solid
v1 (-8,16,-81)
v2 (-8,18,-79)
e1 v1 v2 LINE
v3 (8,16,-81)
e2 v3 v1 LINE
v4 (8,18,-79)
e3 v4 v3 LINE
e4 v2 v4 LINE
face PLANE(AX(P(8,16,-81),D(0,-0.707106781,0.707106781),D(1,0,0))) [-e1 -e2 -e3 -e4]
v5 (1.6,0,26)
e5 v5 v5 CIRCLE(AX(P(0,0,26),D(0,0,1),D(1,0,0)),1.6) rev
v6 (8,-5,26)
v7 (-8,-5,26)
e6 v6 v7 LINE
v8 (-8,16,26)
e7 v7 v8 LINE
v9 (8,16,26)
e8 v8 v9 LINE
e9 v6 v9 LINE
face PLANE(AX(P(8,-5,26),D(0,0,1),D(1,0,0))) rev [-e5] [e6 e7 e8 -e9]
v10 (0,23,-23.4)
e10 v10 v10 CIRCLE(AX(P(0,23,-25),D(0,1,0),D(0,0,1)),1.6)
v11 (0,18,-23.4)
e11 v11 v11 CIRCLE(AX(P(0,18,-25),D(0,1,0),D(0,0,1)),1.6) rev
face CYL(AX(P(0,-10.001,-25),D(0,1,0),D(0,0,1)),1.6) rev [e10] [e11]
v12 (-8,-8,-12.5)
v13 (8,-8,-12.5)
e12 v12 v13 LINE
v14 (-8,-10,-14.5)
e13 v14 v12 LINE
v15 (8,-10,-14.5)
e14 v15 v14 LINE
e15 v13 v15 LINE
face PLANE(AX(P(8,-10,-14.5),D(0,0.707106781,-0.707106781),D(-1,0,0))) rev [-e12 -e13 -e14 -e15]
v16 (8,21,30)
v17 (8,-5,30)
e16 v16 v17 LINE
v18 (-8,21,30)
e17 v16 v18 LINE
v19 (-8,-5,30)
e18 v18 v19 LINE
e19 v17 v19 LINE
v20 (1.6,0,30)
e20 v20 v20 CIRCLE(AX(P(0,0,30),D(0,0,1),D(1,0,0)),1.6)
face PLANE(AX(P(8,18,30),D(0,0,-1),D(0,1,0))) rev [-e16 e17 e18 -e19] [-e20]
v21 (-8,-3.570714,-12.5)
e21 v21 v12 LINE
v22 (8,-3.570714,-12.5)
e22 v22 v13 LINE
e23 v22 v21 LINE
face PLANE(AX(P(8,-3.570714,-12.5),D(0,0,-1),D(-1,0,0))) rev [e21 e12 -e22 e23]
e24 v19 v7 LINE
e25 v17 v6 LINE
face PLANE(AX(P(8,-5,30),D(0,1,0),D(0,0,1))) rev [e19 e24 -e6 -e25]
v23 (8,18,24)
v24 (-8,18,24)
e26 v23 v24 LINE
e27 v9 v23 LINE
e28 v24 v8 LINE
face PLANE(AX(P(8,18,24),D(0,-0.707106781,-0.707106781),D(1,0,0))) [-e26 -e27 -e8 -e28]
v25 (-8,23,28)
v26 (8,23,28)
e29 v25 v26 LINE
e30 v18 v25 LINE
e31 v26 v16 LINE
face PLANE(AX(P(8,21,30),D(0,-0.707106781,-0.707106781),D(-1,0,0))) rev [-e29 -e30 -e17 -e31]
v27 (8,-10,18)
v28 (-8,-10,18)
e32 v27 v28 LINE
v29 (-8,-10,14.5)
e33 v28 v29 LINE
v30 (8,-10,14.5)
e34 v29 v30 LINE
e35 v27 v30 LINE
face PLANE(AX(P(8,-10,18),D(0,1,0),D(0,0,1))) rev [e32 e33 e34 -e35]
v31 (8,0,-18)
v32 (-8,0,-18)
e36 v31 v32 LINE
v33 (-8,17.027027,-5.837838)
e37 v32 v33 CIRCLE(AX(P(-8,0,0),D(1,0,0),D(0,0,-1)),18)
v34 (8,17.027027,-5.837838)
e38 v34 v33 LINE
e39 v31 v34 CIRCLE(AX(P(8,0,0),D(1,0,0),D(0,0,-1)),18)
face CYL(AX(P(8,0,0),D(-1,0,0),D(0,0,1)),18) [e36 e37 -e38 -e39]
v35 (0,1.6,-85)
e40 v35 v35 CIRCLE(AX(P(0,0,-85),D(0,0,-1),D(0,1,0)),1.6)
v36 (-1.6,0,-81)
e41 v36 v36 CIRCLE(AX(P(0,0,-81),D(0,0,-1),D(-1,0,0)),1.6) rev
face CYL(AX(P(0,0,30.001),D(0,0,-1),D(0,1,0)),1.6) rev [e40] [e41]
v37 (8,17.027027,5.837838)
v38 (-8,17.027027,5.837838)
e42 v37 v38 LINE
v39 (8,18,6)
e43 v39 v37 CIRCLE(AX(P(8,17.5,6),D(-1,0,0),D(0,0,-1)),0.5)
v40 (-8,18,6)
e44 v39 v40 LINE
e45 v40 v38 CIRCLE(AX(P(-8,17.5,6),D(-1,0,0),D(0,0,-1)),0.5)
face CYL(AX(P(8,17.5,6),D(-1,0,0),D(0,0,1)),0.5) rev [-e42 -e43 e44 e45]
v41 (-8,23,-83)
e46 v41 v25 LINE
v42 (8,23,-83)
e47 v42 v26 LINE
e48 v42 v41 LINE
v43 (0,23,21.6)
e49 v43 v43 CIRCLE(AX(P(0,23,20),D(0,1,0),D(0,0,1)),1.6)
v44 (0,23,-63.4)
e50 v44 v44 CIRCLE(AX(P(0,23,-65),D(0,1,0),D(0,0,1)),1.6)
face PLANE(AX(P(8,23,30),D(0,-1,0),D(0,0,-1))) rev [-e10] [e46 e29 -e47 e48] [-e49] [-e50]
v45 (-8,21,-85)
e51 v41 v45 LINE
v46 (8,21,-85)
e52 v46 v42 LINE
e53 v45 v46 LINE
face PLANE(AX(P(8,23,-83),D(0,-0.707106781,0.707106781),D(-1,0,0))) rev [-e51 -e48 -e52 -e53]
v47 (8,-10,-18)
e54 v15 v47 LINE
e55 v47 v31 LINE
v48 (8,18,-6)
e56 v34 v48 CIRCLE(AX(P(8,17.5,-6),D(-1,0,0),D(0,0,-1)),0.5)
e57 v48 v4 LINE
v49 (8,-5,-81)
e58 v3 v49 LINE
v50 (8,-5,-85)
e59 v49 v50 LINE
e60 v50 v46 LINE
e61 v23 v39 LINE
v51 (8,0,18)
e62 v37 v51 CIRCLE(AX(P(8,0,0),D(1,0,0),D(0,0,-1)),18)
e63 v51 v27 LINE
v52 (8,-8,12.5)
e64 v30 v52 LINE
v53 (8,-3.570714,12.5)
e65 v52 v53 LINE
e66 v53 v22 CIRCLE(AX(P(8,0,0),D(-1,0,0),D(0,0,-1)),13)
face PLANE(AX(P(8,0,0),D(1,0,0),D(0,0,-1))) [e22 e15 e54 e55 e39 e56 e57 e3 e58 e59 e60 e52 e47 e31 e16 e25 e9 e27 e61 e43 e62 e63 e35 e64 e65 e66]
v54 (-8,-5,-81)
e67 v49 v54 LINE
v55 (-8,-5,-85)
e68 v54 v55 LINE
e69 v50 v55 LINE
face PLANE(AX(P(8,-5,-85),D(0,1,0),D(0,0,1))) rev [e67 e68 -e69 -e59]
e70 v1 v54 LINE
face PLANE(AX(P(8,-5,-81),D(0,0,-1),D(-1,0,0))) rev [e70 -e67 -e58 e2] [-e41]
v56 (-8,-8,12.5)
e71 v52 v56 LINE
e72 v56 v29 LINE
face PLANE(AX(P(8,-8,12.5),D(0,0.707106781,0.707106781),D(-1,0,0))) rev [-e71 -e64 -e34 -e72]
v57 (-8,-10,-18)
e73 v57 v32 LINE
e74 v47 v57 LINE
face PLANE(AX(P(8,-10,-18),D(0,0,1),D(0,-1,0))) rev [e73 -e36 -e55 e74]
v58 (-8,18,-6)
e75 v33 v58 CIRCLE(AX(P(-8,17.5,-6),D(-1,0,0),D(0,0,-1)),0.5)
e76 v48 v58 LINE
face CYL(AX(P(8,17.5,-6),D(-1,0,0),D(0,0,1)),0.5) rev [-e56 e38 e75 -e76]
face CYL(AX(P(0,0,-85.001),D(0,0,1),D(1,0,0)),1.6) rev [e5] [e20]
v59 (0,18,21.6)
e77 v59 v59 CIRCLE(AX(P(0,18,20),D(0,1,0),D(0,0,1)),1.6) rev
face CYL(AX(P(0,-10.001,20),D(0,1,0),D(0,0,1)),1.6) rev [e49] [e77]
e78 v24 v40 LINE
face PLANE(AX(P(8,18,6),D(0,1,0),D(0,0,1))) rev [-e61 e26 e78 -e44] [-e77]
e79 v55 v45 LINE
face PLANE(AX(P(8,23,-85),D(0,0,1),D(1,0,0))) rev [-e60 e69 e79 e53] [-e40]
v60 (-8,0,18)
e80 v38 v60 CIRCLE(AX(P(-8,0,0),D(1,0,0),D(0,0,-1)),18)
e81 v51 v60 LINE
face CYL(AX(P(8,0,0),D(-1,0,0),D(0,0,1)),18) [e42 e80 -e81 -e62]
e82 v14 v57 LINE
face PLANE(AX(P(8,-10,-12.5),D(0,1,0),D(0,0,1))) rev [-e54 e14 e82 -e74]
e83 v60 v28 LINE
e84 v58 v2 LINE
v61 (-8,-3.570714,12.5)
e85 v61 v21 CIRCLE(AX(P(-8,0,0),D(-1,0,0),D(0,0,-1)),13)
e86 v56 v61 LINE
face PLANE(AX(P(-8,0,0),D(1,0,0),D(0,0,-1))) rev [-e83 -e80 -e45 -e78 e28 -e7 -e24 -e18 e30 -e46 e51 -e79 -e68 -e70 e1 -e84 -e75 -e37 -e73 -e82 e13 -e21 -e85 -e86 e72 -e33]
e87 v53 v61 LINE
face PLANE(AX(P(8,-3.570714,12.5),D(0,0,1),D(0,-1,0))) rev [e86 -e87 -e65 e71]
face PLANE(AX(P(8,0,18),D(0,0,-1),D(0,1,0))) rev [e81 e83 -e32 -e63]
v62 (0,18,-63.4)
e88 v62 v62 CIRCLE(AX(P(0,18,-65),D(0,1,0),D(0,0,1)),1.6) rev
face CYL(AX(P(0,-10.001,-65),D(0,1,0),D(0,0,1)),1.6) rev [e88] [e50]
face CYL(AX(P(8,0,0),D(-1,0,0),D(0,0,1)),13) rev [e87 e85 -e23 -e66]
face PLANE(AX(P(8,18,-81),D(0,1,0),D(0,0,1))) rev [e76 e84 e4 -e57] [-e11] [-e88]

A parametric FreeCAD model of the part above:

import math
import FreeCAD as App
import Part
import Sketcher

V = App.Vector


def edges_at(feature, points):
    """Names of the edges that pass closest to the given points."""
    edges = feature.Shape.Edges
    near = lambda p: min(range(len(edges)), key=lambda i: edges[i].distToShape(Part.Vertex(*p))[0])
    return sorted({f"Edge{near(p) + 1}" for p in points})

doc = App.newDocument("Part")
params = doc.addObject("Spreadsheet::Sheet", "Params")
for row, (alias, value) in enumerate([
    ("sketch1_radius", "13 mm"),
    ("sketch1_radius2", "18 mm"),
    ("sketch1_radius3", "0.5 mm"),
    ("sketch1_width", "10 mm"),
    ("sketch1_width2", "23 mm"),
    ("pad1_length", "16 mm"),
    ("chamfer_size", "2 mm"),
    ("chamfer2_size", "2 mm"),
    ("sketch2_diameter", "3.2 mm"),
    ("sketch3_diameter", "3.2 mm"),
    ("sketch4_diameter", "3.2 mm"),
    ("sketch5_diameter", "3.2 mm"),
    ("sketch6_diameter", "3.2 mm"),
], start=1):
    params.set(f"A{row}", alias)
    params.set(f"B{row}", "=" + value)
    params.setAlias(f"B{row}", alias)

body = doc.addObject("PartDesign::Body", "Body")

# Sketch on YZ plane
sketch1 = body.newObject("Sketcher::SketchObject", "Sketch")
sketch1.AttachmentSupport = (doc.getObject("YZ_Plane"), [""])
sketch1.MapMode = "FlatFace"
sketch1.addGeometry([
    Part.LineSegment(V(-10, 12.5, 0), V(-3.6, 12.5, 0)),  # 0
    Part.ArcOfCircle(Part.Circle(V(0, 0, 0), V(0, 0, 1), 13), math.radians(-106), math.radians(106)),  # 1
    Part.LineSegment(V(-3.6, -12.5, 0), V(-10, -12.5, 0)),  # 2
    Part.LineSegment(V(-10, -12.5, 0), V(-10, -18, 0)),  # 3
    Part.LineSegment(V(-10, -18, 0), V(0, -18, 0)),  # 4
    Part.ArcOfCircle(Part.Circle(V(0, 0, 0), V(0, 0, 1), 18), math.radians(-90), math.radians(-19)),  # 5
    Part.ArcOfCircle(Part.Circle(V(17.5, -6, 0), V(0, 0, 1), 0.5), math.radians(0), math.radians(161)),  # 6
    Part.LineSegment(V(18, -6, 0), V(18, -81, 0)),  # 7
    Part.LineSegment(V(18, -81, 0), V(-5, -81, 0)),  # 8
    Part.LineSegment(V(-5, -81, 0), V(-5, -85, 0)),  # 9
    Part.LineSegment(V(-5, -85, 0), V(23, -85, 0)),  # 10
    Part.LineSegment(V(23, -85, 0), V(23, 30, 0)),  # 11
    Part.LineSegment(V(23, 30, 0), V(-5, 30, 0)),  # 12
    Part.LineSegment(V(-5, 30, 0), V(-5, 26, 0)),  # 13
    Part.LineSegment(V(-5, 26, 0), V(18, 26, 0)),  # 14
    Part.LineSegment(V(18, 26, 0), V(18, 6, 0)),  # 15
    Part.ArcOfCircle(Part.Circle(V(17.5, 6, 0), V(0, 0, 1), 0.5), math.radians(-161), math.radians(0)),  # 16
    Part.ArcOfCircle(Part.Circle(V(0, 0, 0), V(0, 0, 1), 18), math.radians(19), math.radians(90)),  # 17
    Part.LineSegment(V(0, 18, 0), V(-10, 18, 0)),  # 18
    Part.LineSegment(V(-10, 18, 0), V(-10, 12.5, 0)),  # 19
], False)
sketch1.addConstraint([
    Sketcher.Constraint("Coincident", 0, 2, 1, 2),
    Sketcher.Constraint("Coincident", 1, 1, 2, 1),
    Sketcher.Constraint("Coincident", 2, 2, 3, 1),
    Sketcher.Constraint("Coincident", 3, 2, 4, 1),
    Sketcher.Constraint("Tangent", 4, 2, 5, 1),
    Sketcher.Constraint("Tangent", 5, 2, 6, 2),
    Sketcher.Constraint("Tangent", 6, 1, 7, 1),
    Sketcher.Constraint("Coincident", 7, 2, 8, 1),
    Sketcher.Constraint("Coincident", 8, 2, 9, 1),
    Sketcher.Constraint("Coincident", 9, 2, 10, 1),
    Sketcher.Constraint("Coincident", 10, 2, 11, 1),
    Sketcher.Constraint("Coincident", 11, 2, 12, 1),
    Sketcher.Constraint("Coincident", 12, 2, 13, 1),
    Sketcher.Constraint("Coincident", 13, 2, 14, 1),
    Sketcher.Constraint("Coincident", 14, 2, 15, 1),
    Sketcher.Constraint("Tangent", 15, 2, 16, 2),
    Sketcher.Constraint("Tangent", 16, 1, 17, 1),
    Sketcher.Constraint("Tangent", 17, 2, 18, 1),
    Sketcher.Constraint("Coincident", 18, 2, 19, 1),
    Sketcher.Constraint("Coincident", 19, 2, 0, 1),
    Sketcher.Constraint("Horizontal", 0),
    Sketcher.Constraint("Horizontal", 2),
    Sketcher.Constraint("Vertical", 3),
    Sketcher.Constraint("Horizontal", 4),
    Sketcher.Constraint("Vertical", 7),
    Sketcher.Constraint("Horizontal", 8),
    Sketcher.Constraint("Vertical", 9),
    Sketcher.Constraint("Horizontal", 10),
    Sketcher.Constraint("Vertical", 11),
    Sketcher.Constraint("Horizontal", 12),
    Sketcher.Constraint("Vertical", 13),
    Sketcher.Constraint("Horizontal", 14),
    Sketcher.Constraint("Vertical", 15),
    Sketcher.Constraint("Horizontal", 18),
    Sketcher.Constraint("Vertical", 19),
    Sketcher.Constraint("Coincident", 1, 3, -1, 1),
    Sketcher.Constraint("Coincident", 5, 3, -1, 1),
    Sketcher.Constraint("Coincident", 17, 3, -1, 1),
    Sketcher.Constraint("Equal", 6, 16),
    Sketcher.Constraint("Equal", 5, 17),
    Sketcher.Constraint("Symmetric", 2, 2, 19, 2, -1),
    Sketcher.Constraint("Vertical", 6, 3, 16, 3),
    Sketcher.Constraint("Vertical", 9, 2, 12, 2),
    Sketcher.Constraint("Equal", 9, 13),
    Sketcher.Constraint("Radius", 1, 13.0),
    Sketcher.Constraint("Radius", 5, 18.0),
    Sketcher.Constraint("Radius", 6, 0.5),
    Sketcher.Constraint("DistanceX", 4, 1, 4, 2, 10.0),
    Sketcher.Constraint("DistanceX", 8, 2, 8, 1, 23.0),
    Sketcher.Constraint("DistanceX", 10, 1, 10, 2, 28.0),
    Sketcher.Constraint("DistanceY", 7, 2, 7, 1, 75.0),
    Sketcher.Constraint("DistanceY", 9, 2, 9, 1, 4.0),
    Sketcher.Constraint("DistanceY", 11, 1, 11, 2, 115.0),
    Sketcher.Constraint("DistanceY", 15, 2, 15, 1, 20.0),
    Sketcher.Constraint("DistanceY", 3, 2, 3, 1, 5.5),
])
sketch1.setExpression("Constraints[44]", "Params.sketch1_radius")
sketch1.setExpression("Constraints[45]", "Params.sketch1_radius2")
sketch1.setExpression("Constraints[46]", "Params.sketch1_radius3")
sketch1.setExpression("Constraints[47]", "Params.sketch1_width")
sketch1.setExpression("Constraints[48]", "Params.sketch1_width2")
pad1 = body.newObject("PartDesign::Pad", "Pad")
pad1.Profile = sketch1
pad1.setExpression("Length", "Params.pad1_length")
pad1.Midplane = True
doc.recompute()

chamfer = body.newObject("PartDesign::Chamfer", "Chamfer")
chamfer.Base = (pad1, edges_at(pad1, [(0, 18, 26), (0, 18, -81)]))
chamfer.setExpression("Size", "Params.chamfer_size")
doc.recompute()

chamfer2 = body.newObject("PartDesign::Chamfer", "Chamfer001")
chamfer2.Base = (chamfer, edges_at(chamfer, [
    (0, -10, -12.5),
    (0, -10, 12.5),
    (0, 23, 30),
    (0, 23, -85),
]))
chamfer2.setExpression("Size", "Params.chamfer2_size")

# Sketch on XY plane
sketch2 = body.newObject("Sketcher::SketchObject", "Sketch001")
sketch2.AttachmentSupport = (doc.getObject("XY_Plane"), [""])
sketch2.MapMode = "FlatFace"
sketch2.AttachmentOffset = App.Placement(V(0, 0, 30), App.Rotation())
sketch2.addGeometry(Part.Circle(V(0, 0, 0), V(0, 0, 1), 1.6), False)
sketch2.addConstraint([
    Sketcher.Constraint("Coincident", 0, 3, -1, 1),
    Sketcher.Constraint("Diameter", 0, 3.2),
])
sketch2.setExpression("Constraints[1]", "Params.sketch2_diameter")
pocket1 = body.newObject("PartDesign::Pocket", "Pocket")
pocket1.Profile = sketch2
pocket1.Type = "UpToFirst"

# Sketch on XY plane
sketch3 = body.newObject("Sketcher::SketchObject", "Sketch002")
sketch3.AttachmentSupport = (doc.getObject("XY_Plane"), [""])
sketch3.MapMode = "FlatFace"
sketch3.AttachmentOffset = App.Placement(V(0, 0, -85), App.Rotation())
sketch3.addGeometry(Part.Circle(V(0, 0, 0), V(0, 0, 1), 1.6), False)
sketch3.addConstraint([
    Sketcher.Constraint("Coincident", 0, 3, -1, 1),
    Sketcher.Constraint("Diameter", 0, 3.2),
])
sketch3.setExpression("Constraints[1]", "Params.sketch3_diameter")
pocket2 = body.newObject("PartDesign::Pocket", "Pocket001")
pocket2.Profile = sketch3
pocket2.Type = "UpToFirst"
pocket2.Reversed = True

# Sketch on XZ plane
sketch4 = body.newObject("Sketcher::SketchObject", "Sketch003")
sketch4.AttachmentSupport = (doc.getObject("XZ_Plane"), [""])
sketch4.MapMode = "FlatFace"
sketch4.AttachmentOffset = App.Placement(V(0, 0, -23), App.Rotation())
sketch4.addGeometry(Part.Circle(V(0, -65, 0), V(0, 0, 1), 1.6), False)
sketch4.addConstraint([
    Sketcher.Constraint("PointOnObject", 0, 3, -2),
    Sketcher.Constraint("Diameter", 0, 3.2),
    Sketcher.Constraint("DistanceY", 0, 3, -1, 1, 65.0),
])
sketch4.setExpression("Constraints[1]", "Params.sketch4_diameter")
pocket3 = body.newObject("PartDesign::Pocket", "Pocket002")
pocket3.Profile = sketch4
pocket3.Type = "UpToFirst"
pocket3.Reversed = True

# Sketch on XZ plane
sketch5 = body.newObject("Sketcher::SketchObject", "Sketch004")
sketch5.AttachmentSupport = (doc.getObject("XZ_Plane"), [""])
sketch5.MapMode = "FlatFace"
sketch5.AttachmentOffset = App.Placement(V(0, 0, -23), App.Rotation())
sketch5.addGeometry(Part.Circle(V(0, -25, 0), V(0, 0, 1), 1.6), False)
sketch5.addConstraint([
    Sketcher.Constraint("PointOnObject", 0, 3, -2),
    Sketcher.Constraint("Diameter", 0, 3.2),
    Sketcher.Constraint("DistanceY", 0, 3, -1, 1, 25.0),
])
sketch5.setExpression("Constraints[1]", "Params.sketch5_diameter")
pocket4 = body.newObject("PartDesign::Pocket", "Pocket003")
pocket4.Profile = sketch5
pocket4.Type = "UpToFirst"
pocket4.Reversed = True

# Sketch on XZ plane
sketch6 = body.newObject("Sketcher::SketchObject", "Sketch005")
sketch6.AttachmentSupport = (doc.getObject("XZ_Plane"), [""])
sketch6.MapMode = "FlatFace"
sketch6.AttachmentOffset = App.Placement(V(0, 0, -23), App.Rotation())
sketch6.addGeometry(Part.Circle(V(0, 20, 0), V(0, 0, 1), 1.6), False)
sketch6.addConstraint([
    Sketcher.Constraint("PointOnObject", 0, 3, -2),
    Sketcher.Constraint("Diameter", 0, 3.2),
    Sketcher.Constraint("DistanceY", -1, 1, 0, 3, 20.0),
])
sketch6.setExpression("Constraints[1]", "Params.sketch6_diameter")
pocket5 = body.newObject("PartDesign::Pocket", "Pocket004")
pocket5.Profile = sketch6
pocket5.Type = "UpToFirst"
pocket5.Reversed = True

doc.recompute()
